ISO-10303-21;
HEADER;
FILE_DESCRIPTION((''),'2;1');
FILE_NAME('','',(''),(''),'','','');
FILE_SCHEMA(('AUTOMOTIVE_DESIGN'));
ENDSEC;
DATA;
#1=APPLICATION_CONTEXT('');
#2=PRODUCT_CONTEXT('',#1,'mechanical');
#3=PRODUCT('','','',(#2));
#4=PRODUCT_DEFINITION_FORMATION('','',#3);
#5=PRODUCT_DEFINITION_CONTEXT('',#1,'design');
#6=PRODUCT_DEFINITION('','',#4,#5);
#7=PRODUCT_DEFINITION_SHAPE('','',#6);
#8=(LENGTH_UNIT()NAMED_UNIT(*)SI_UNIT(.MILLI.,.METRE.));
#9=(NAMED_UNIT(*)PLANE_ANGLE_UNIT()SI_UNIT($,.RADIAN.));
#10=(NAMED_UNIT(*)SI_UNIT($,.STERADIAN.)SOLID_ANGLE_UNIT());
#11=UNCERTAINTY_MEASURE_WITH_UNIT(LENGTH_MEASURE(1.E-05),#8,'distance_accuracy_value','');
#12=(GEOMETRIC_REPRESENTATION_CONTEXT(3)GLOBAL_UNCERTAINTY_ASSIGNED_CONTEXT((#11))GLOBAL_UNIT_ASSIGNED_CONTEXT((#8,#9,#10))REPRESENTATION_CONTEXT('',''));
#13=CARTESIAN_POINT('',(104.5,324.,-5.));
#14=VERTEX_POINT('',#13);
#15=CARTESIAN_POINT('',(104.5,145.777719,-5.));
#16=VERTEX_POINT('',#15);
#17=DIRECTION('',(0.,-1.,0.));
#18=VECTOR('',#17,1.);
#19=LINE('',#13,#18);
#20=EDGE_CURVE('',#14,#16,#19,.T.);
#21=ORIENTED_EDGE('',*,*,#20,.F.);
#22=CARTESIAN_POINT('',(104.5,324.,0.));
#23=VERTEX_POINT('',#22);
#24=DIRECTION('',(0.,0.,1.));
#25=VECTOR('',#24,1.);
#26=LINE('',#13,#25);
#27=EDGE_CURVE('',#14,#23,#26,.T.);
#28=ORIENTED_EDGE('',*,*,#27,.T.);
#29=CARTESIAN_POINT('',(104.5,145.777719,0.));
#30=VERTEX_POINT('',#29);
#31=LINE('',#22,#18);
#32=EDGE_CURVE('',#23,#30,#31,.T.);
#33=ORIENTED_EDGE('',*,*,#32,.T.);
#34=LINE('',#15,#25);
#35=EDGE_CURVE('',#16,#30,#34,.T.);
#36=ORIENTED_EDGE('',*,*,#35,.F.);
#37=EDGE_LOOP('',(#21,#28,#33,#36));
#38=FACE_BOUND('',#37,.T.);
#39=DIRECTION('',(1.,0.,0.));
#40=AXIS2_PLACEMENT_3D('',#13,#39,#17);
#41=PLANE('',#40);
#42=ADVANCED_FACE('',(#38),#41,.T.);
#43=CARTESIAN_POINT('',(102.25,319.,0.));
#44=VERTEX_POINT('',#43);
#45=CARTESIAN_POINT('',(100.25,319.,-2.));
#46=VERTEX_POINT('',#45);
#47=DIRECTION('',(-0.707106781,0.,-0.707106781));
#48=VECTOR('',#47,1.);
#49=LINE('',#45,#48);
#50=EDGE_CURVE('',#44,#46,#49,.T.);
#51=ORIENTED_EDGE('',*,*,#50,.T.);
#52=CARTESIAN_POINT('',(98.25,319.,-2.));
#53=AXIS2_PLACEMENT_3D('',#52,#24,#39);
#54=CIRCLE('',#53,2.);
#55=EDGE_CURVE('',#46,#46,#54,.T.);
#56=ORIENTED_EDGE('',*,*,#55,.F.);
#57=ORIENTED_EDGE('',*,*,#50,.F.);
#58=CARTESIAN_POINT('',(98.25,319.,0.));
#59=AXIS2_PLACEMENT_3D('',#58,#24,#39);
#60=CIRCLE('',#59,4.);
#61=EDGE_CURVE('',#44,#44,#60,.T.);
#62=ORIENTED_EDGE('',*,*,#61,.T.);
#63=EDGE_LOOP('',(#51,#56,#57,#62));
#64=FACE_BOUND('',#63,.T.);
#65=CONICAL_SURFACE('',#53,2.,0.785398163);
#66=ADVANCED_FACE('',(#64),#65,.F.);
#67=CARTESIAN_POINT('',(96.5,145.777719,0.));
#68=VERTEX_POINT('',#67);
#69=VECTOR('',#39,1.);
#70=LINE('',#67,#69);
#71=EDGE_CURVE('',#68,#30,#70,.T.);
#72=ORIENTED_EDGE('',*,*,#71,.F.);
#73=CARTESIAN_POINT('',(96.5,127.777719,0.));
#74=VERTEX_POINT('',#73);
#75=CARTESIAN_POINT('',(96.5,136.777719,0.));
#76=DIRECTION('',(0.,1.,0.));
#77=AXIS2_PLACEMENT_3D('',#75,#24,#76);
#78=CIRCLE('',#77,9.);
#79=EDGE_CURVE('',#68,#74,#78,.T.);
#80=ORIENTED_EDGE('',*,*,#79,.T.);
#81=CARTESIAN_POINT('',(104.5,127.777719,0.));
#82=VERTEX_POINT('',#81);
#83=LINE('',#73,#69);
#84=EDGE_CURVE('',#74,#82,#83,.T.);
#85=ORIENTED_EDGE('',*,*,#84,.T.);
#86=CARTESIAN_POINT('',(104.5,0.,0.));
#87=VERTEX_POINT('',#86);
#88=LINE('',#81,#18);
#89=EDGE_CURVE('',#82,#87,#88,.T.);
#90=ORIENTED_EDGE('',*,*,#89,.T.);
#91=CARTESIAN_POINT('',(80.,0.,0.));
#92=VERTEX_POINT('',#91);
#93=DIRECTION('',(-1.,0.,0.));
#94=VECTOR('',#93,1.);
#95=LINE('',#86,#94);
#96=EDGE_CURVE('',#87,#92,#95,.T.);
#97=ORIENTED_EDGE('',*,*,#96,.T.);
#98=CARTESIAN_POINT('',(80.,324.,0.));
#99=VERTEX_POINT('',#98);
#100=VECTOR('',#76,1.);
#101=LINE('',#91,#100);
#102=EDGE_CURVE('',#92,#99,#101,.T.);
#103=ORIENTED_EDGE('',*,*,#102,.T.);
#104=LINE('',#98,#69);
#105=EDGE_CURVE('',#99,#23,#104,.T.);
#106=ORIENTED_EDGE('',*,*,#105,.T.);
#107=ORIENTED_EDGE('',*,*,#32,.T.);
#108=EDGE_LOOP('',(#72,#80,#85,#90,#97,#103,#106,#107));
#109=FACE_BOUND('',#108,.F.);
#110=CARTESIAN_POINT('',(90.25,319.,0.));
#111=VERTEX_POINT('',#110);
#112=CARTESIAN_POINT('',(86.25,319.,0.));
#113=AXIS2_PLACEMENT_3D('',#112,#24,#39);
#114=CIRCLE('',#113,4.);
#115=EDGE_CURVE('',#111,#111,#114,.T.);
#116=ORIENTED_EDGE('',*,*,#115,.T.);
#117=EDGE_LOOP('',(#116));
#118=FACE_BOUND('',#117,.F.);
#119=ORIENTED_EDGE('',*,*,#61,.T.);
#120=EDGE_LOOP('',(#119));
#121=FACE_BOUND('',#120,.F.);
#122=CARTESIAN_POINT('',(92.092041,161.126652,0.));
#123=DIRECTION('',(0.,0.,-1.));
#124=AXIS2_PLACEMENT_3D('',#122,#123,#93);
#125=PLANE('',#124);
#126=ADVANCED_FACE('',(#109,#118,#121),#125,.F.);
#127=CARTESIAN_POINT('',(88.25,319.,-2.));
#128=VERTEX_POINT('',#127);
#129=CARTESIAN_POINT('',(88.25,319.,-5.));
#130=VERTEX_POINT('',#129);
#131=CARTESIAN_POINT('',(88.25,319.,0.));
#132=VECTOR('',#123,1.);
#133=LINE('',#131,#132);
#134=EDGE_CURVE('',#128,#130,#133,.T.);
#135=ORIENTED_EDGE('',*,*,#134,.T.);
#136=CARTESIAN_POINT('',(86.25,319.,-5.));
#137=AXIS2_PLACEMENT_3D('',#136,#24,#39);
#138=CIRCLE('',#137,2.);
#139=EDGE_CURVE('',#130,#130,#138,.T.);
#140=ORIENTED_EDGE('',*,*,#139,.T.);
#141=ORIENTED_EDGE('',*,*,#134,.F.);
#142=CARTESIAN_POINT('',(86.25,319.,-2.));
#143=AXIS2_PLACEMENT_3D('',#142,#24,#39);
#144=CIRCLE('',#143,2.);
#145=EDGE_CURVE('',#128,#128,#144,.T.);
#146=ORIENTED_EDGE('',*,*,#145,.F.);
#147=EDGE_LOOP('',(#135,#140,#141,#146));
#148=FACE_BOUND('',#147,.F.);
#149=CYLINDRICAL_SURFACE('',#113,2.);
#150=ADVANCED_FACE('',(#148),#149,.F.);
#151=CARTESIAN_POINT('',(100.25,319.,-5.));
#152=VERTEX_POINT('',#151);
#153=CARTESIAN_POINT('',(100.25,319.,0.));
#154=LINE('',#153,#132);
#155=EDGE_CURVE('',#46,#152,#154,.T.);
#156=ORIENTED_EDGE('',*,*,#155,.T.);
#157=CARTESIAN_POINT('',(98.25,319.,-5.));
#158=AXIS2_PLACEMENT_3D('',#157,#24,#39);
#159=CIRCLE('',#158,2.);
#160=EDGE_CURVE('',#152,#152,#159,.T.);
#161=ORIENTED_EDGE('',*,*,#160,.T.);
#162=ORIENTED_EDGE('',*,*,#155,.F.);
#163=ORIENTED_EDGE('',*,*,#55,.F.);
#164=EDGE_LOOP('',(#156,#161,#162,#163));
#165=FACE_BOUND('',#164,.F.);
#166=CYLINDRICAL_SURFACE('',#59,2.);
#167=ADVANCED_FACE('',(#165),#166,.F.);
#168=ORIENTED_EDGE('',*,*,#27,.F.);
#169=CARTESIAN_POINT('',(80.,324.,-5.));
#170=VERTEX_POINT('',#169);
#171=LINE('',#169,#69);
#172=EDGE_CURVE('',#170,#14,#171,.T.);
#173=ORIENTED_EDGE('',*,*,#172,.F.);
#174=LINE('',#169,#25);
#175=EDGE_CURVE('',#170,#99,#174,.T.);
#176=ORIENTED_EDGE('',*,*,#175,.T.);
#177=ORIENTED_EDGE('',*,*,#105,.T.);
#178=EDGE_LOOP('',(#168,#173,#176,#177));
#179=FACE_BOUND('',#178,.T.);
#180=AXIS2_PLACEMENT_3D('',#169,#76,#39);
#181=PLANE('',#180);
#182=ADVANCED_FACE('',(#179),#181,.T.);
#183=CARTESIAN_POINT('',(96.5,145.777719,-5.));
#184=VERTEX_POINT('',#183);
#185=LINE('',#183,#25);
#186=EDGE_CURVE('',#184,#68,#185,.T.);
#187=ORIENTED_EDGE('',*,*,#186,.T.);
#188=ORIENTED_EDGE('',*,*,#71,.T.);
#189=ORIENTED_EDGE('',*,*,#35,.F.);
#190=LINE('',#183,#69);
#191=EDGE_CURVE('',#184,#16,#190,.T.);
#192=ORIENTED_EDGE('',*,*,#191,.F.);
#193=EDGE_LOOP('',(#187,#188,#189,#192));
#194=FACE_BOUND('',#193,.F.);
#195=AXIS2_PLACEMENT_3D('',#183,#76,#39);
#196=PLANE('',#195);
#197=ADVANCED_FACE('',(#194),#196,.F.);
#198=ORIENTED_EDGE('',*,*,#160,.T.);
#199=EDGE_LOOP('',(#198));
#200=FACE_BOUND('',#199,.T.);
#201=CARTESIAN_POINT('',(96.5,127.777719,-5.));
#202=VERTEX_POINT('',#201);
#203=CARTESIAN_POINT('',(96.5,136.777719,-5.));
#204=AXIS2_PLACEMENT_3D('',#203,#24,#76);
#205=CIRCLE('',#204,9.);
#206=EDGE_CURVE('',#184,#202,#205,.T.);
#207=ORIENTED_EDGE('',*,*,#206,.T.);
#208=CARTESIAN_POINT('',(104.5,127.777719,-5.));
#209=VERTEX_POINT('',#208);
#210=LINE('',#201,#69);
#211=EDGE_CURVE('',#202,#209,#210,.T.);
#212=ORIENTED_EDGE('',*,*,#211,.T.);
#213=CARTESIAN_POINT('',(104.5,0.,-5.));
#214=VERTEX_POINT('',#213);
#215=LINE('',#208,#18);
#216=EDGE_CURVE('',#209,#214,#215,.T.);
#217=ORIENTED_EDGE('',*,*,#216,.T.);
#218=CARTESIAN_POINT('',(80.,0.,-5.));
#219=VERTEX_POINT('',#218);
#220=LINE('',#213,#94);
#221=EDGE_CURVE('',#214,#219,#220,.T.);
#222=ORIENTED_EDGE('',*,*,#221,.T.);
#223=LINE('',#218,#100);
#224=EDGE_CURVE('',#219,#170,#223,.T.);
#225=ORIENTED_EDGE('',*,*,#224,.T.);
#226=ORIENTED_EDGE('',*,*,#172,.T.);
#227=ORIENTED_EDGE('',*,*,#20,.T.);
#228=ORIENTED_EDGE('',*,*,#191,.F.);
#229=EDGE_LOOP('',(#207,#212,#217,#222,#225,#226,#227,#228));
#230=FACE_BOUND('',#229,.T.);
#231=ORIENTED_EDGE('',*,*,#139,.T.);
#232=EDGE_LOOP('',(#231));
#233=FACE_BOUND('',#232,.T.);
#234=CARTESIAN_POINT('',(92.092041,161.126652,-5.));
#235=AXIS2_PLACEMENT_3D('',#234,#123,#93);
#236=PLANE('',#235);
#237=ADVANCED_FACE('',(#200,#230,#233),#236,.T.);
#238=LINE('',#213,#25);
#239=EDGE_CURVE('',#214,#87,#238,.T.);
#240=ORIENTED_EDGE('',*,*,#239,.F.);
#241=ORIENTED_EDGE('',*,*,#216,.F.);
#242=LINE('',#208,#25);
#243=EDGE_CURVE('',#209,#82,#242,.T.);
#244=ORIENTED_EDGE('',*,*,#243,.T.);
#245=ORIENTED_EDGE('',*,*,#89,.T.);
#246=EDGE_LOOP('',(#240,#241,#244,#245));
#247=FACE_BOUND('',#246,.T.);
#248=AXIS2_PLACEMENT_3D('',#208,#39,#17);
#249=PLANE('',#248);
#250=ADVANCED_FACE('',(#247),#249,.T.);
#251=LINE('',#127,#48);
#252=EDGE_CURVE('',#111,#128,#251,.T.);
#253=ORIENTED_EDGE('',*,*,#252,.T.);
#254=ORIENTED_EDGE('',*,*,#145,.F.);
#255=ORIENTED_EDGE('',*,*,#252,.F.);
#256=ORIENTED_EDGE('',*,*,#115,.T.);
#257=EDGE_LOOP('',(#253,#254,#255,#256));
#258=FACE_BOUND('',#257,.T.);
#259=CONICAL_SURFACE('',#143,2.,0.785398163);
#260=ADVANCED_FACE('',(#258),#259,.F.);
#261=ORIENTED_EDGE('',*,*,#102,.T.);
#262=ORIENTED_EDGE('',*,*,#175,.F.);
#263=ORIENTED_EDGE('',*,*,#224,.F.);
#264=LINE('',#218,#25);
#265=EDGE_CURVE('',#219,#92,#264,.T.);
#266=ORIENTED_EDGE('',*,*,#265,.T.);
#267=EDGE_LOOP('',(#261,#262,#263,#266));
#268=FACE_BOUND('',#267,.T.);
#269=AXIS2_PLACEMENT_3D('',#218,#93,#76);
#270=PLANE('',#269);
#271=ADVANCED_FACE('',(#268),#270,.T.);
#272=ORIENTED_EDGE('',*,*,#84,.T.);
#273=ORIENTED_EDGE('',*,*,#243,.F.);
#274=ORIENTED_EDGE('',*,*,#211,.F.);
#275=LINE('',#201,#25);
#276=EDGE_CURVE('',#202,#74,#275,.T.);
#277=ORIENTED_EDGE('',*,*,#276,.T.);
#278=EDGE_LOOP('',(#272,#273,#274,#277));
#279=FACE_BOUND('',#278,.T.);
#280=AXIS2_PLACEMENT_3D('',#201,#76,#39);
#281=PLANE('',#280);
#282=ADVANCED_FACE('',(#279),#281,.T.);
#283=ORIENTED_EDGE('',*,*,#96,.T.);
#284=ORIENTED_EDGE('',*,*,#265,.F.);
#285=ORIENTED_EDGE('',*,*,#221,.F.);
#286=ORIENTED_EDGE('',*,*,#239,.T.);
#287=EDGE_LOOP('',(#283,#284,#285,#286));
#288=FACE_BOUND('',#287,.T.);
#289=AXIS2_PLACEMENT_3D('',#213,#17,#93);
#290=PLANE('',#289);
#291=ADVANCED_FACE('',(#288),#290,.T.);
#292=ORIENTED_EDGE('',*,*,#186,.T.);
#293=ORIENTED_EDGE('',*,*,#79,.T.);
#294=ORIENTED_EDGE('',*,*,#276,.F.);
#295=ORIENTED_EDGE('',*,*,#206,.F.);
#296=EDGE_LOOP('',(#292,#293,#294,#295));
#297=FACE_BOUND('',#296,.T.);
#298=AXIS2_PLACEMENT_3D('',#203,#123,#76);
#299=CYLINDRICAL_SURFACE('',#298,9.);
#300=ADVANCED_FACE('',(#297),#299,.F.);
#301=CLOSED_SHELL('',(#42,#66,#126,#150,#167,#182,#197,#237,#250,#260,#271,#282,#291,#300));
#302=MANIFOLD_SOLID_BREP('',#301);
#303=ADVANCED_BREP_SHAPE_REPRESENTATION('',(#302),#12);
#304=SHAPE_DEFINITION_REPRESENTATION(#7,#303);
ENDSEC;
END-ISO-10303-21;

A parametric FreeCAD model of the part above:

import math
import FreeCAD as App
import Part
import Sketcher
from FreeCAD import Vector


def edges_at(feature, points):
    """Names of the edges that pass closest to the given points."""
    edges = feature.Shape.Edges
    near = lambda p: min(range(len(edges)), key=lambda i: edges[i].distToShape(Part.Vertex(*p))[0])
    return sorted({f"Edge{near(p) + 1}" for p in points})

doc = App.newDocument("Part")
params = doc.addObject("Spreadsheet::Sheet", "Params")
for row, (alias, value) in enumerate([
    ("sketch1_radius", "9 mm"),
    ("sketch1_width", "8 mm"),
    ("sketch1_height", "324 mm"),
    ("sketch1_width2", "24.5 mm"),
    ("pad1_length", "5 mm"),
    ("sketch2_diameter", "4 mm"),
    ("chamfer_size", "2 mm"),
], start=1):
    params.set(f"A{row}", alias)
    params.set(f"B{row}", "=" + value)
    params.setAlias(f"B{row}", alias)

body = doc.addObject("PartDesign::Body", "Body")

# Sketch on XY plane
sketch1 = body.newObject("Sketcher::SketchObject", "Sketch")
sketch1.AttachmentSupport = (doc.getObject("XY_Plane"), [""])
sketch1.MapMode = "FlatFace"
sketch1.addGeometry([
    Part.LineSegment(Vector(8.676816, -107.8, 0), Vector(8.676816, 19.977719, 0)),  # 0
    Part.LineSegment(Vector(8.676816, 19.977719, 0), Vector(0.676816, 19.977719, 0)),  # 1
    Part.ArcOfCircle(Part.Circle(Vector(0.676816, 28.977719, 0), Vector(0, 0, 1), 9), math.radians(90), math.radians(270)),  # 2
    Part.LineSegment(Vector(0.676816, 37.977719, 0), Vector(8.676816, 37.977719, 0)),  # 3
    Part.LineSegment(Vector(8.676816, 37.977719, 0), Vector(8.676816, 216.2, 0)),  # 4
    Part.LineSegment(Vector(8.676816, 216.2, 0), Vector(-15.823184, 216.2, 0)),  # 5
    Part.LineSegment(Vector(-15.823184, 216.2, 0), Vector(-15.823184, -107.8, 0)),  # 6
    Part.LineSegment(Vector(-15.823184, -107.8, 0), Vector(8.676816, -107.8, 0)),  # 7
], False)
sketch1.addConstraint([
    Sketcher.Constraint("Coincident", 0, 2, 1, 1),
    Sketcher.Constraint("Tangent", 1, 2, 2, 2),
    Sketcher.Constraint("Tangent", 2, 1, 3, 1),
    Sketcher.Constraint("Coincident", 3, 2, 4, 1),
    Sketcher.Constraint("Coincident", 4, 2, 5, 1),
    Sketcher.Constraint("Coincident", 5, 2, 6, 1),
    Sketcher.Constraint("Coincident", 6, 2, 7, 1),
    Sketcher.Constraint("Coincident", 7, 2, 0, 1),
    Sketcher.Constraint("Vertical", 0),
    Sketcher.Constraint("Horizontal", 1),
    Sketcher.Constraint("Horizontal", 3),
    Sketcher.Constraint("Vertical", 4),
    Sketcher.Constraint("Horizontal", 5),
    Sketcher.Constraint("Vertical", 6),
    Sketcher.Constraint("Horizontal", 7),
    Sketcher.Constraint("Vertical", 0, 2, 3, 2),
    Sketcher.Constraint("Radius", 2, 9.0),
    Sketcher.Constraint("DistanceX", 1, 2, 1, 1, 8.0),
    Sketcher.Constraint("DistanceY", 6, 2, 6, 1, 324.0),
    Sketcher.Constraint("DistanceX", 5, 2, 5, 1, 24.5),
    Sketcher.Constraint("DistanceY", -1, 1, 4, 2, 216.2),
    Sketcher.Constraint("DistanceY", 0, 1, 0, 2, 127.777719),
    Sketcher.Constraint("DistanceX", -1, 1, 2, 3, 0.676816),
])
sketch1.setExpression("Constraints[16]", "Params.sketch1_radius")
sketch1.setExpression("Constraints[17]", "Params.sketch1_width")
sketch1.setExpression("Constraints[18]", "Params.sketch1_height")
sketch1.setExpression("Constraints[19]", "Params.sketch1_width2")
pad1 = body.newObject("PartDesign::Pad", "Pad")
pad1.Profile = sketch1
pad1.setExpression("Length", "Params.pad1_length")

# Sketch on XY plane
sketch2 = body.newObject("Sketcher::SketchObject", "Sketch001")
sketch2.AttachmentSupport = (doc.getObject("XY_Plane"), [""])
sketch2.MapMode = "FlatFace"
sketch2.AttachmentOffset = App.Placement(Vector(0, 0, 5), App.Rotation())
sketch2.addGeometry([
    Part.Circle(Vector(-9.573184, 211.2, 0), Vector(0, 0, 1), 2),
    Part.Circle(Vector(2.426816, 211.2, 0), Vector(0, 0, 1), 2),
], False)
sketch2.addConstraint([
    Sketcher.Constraint("Equal", 0, 1),
    Sketcher.Constraint("Horizontal", 0, 3, 1, 3),
    Sketcher.Constraint("Diameter", 0, 4.0),
    Sketcher.Constraint("DistanceX", 0, 3, 1, 3, 12.0),
    Sketcher.Constraint("DistanceY", -1, 1, 0, 3, 211.2),
    Sketcher.Constraint("DistanceX", 0, 3, -1, 1, 9.573184),
])
sketch2.setExpression("Constraints[2]", "Params.sketch2_diameter")
pocket1 = body.newObject("PartDesign::Pocket", "Pocket")
pocket1.Profile = sketch2
pocket1.Type = "ThroughAll"
doc.recompute()

chamfer = body.newObject("PartDesign::Chamfer", "Chamfer")
chamfer.Base = (pocket1, edges_at(pocket1, [(-11.573, 211.2, 5), (0.427, 211.2, 5)]))
chamfer.setExpression("Size", "Params.chamfer_size")
body2 = doc.addObject("PartDesign::Body", "Body001")
doc.recompute()

body.Placement = App.Placement(Vector(-100, 0, 15.5), App.Rotation(Vector(0, 0, 1), 0))
boolean = body2.newObject("PartDesign::Boolean", "Boolean")
boolean.Type = "Fuse"
boolean.addObjects([body])
body3 = doc.addObject("PartDesign::Body", "Body002")
doc.recompute()

body2.Placement = App.Placement(Vector(195.823184, 107.8, -20.5), App.Rotation(Vector(0, 0, 1), 0))
boolean2 = body3.newObject("PartDesign::Boolean", "Boolean001")
boolean2.Type = "Fuse"
boolean2.addObjects([body2])

doc.recompute()
